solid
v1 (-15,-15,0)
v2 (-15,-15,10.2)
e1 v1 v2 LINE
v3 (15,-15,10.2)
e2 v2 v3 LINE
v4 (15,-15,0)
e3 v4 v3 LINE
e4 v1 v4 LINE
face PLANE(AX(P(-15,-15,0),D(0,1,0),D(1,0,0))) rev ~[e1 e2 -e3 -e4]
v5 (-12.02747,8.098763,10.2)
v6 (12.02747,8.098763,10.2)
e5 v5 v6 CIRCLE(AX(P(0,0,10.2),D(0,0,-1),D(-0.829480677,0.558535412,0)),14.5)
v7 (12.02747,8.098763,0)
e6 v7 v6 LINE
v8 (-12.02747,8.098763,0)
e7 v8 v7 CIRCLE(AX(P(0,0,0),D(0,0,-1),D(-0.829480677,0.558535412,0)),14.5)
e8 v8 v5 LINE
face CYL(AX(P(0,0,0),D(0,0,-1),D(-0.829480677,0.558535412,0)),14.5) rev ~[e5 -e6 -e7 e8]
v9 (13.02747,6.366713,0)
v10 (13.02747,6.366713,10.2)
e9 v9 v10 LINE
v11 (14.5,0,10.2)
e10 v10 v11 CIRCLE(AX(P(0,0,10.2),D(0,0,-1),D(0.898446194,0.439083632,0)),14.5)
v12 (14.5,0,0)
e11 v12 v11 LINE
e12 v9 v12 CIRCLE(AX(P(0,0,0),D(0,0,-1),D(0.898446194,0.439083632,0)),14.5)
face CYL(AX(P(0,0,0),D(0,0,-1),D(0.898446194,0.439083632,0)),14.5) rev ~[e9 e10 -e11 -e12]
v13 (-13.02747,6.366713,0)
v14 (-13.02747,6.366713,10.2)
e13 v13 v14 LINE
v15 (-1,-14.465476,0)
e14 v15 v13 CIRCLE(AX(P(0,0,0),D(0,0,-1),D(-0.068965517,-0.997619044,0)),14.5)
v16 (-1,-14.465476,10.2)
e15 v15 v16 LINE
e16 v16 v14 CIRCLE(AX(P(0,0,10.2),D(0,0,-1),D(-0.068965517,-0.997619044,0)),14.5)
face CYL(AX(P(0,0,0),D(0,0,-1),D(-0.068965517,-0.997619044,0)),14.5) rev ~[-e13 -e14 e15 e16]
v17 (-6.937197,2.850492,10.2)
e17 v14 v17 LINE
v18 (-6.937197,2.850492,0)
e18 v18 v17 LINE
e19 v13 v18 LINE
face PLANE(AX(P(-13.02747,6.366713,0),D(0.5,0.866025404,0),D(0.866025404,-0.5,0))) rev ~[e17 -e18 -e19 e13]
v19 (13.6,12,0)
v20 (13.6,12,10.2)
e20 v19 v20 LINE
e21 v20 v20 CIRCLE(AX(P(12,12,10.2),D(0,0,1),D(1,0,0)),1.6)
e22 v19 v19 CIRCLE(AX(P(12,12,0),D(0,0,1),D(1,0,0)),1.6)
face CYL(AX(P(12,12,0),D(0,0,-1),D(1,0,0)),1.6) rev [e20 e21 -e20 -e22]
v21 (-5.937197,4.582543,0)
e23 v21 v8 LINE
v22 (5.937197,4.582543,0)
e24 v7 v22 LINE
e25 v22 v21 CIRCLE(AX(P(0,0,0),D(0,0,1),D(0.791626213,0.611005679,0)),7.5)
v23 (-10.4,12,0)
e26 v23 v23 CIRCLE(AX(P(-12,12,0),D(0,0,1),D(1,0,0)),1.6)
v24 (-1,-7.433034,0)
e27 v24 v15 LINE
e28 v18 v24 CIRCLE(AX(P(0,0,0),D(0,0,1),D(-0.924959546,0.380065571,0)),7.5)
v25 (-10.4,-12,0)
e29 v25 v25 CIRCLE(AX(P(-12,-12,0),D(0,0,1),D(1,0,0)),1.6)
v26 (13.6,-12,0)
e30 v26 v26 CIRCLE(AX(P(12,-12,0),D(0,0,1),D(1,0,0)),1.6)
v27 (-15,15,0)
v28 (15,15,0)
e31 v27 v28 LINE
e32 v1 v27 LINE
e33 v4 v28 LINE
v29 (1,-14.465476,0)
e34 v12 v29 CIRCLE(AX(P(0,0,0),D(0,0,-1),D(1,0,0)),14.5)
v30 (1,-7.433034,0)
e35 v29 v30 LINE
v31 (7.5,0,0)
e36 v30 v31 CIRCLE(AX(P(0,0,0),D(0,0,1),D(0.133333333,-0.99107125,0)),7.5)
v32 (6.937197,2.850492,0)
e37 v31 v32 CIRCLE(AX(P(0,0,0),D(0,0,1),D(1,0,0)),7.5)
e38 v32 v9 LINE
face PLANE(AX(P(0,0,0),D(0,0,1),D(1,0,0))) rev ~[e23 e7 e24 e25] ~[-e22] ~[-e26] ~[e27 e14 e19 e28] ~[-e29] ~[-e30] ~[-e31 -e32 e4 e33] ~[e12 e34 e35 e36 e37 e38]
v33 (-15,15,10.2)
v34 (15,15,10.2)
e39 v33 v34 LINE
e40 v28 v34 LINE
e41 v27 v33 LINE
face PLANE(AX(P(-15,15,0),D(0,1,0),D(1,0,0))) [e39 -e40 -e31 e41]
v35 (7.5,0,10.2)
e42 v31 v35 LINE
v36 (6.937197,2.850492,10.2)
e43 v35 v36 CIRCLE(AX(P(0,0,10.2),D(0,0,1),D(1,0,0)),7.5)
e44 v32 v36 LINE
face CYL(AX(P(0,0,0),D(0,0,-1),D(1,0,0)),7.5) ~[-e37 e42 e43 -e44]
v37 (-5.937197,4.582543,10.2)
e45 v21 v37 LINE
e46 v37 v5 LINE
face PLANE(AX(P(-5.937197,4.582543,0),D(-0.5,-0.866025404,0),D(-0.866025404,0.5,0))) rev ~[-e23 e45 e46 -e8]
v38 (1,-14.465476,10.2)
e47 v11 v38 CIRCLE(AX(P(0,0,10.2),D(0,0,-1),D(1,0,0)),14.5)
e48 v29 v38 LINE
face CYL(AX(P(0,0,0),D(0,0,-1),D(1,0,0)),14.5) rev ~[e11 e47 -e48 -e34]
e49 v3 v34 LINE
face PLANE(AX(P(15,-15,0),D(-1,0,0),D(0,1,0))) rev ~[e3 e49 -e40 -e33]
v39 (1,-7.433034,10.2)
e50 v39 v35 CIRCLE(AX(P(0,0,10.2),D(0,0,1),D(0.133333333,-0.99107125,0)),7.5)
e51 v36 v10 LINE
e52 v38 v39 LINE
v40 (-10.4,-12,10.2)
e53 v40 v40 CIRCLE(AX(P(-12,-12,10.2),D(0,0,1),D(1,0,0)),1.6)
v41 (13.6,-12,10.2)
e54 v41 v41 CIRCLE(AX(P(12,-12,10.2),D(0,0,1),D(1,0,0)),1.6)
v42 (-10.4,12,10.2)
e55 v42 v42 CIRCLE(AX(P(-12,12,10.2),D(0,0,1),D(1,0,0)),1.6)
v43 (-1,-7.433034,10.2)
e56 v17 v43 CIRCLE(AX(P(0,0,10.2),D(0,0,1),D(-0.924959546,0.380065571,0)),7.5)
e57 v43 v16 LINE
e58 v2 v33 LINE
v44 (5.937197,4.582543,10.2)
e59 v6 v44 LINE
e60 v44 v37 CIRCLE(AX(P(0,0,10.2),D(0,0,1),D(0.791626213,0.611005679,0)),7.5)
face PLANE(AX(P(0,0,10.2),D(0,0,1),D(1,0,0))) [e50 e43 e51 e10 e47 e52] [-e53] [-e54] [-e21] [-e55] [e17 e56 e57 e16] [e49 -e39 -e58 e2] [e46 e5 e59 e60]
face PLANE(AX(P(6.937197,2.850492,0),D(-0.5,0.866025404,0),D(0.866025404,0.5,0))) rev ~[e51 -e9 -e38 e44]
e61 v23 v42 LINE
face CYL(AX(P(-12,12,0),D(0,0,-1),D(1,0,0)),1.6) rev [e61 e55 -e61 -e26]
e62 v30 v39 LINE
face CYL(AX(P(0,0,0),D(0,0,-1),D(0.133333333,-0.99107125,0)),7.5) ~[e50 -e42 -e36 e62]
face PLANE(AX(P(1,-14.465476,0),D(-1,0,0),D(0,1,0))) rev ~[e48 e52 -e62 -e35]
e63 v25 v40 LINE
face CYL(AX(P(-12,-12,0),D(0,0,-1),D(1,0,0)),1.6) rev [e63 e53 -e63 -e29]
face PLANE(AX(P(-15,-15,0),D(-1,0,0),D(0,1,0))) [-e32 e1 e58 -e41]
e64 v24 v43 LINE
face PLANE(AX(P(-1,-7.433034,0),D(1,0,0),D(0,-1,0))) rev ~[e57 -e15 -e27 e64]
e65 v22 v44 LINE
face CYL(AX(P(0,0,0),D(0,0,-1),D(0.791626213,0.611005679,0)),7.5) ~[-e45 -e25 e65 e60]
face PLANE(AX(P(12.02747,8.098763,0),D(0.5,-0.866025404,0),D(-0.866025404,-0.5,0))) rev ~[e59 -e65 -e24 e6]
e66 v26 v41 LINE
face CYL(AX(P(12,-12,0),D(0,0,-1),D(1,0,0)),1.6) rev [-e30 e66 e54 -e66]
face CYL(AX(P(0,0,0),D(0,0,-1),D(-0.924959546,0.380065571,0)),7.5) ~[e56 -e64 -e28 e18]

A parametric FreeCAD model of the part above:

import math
import FreeCAD as App
import Part
import Sketcher
Q = App.Units.Quantity


def add_polygon(sketch, points):
    """Adds a closed chain of lines whose ends are joined by coincident constraints."""
    first, n = sketch.GeometryCount, len(points)
    for a, b in zip(points, points[1:] + points[:1]):
        sketch.addGeometry(Part.LineSegment(App.Vector(*a, 0), App.Vector(*b, 0)), False)
    for i in range(n):
        sketch.addConstraint(Sketcher.Constraint("Coincident", first + i, 2, first + (i + 1) % n, 1))

doc = App.newDocument("Part")
body = doc.addObject("PartDesign::Body", "Body")

# Sketch on XY plane
sketch1 = body.newObject("Sketcher::SketchObject", "Sketch")
sketch1.AttachmentSupport = (doc.getObject("XY_Plane"), [""])
sketch1.MapMode = "FlatFace"
add_polygon(sketch1, [(-15, 15), (-15, -15), (15, -15), (15, 15)])  # lines 0-3
sketch1.addGeometry(Part.Circle(App.Vector(-12, -12, 0), App.Vector(0, 0, 1), 1.6), False)  # 4
sketch1.addGeometry(Part.ArcOfCircle(Part.Circle(App.Vector(0, 0, 0), App.Vector(0, 0, 1), 14.5), math.radians(154), math.radians(266)), False)  # 5
sketch1.addGeometry(Part.LineSegment(App.Vector(-13, 6.4, 0), App.Vector(-6.9, 2.9, 0)), False)  # 6
sketch1.addGeometry(Part.ArcOfCircle(Part.Circle(App.Vector(0, 0, 0), App.Vector(0, 0, 1), 7.5), math.radians(158), math.radians(262)), False)  # 7
sketch1.addGeometry(Part.LineSegment(App.Vector(-1, -7.4, 0), App.Vector(-1, -14.5, 0)), False)  # 8
sketch1.addGeometry(Part.Circle(App.Vector(12, -12, 0), App.Vector(0, 0, 1), 1.6), False)  # 9
sketch1.addGeometry(Part.ArcOfCircle(Part.Circle(App.Vector(0, 0, 0), App.Vector(0, 0, 1), 14.5), math.radians(-86), math.radians(0)), False)  # 10
sketch1.addGeometry(Part.LineSegment(App.Vector(1, -14.5, 0), App.Vector(1, -7.4, 0)), False)  # 11
sketch1.addGeometry(Part.ArcOfCircle(Part.Circle(App.Vector(0, 0, 0), App.Vector(0, 0, 1), 7.5), math.radians(-82), math.radians(0)), False)  # 12
sketch1.addGeometry(Part.ArcOfCircle(Part.Circle(App.Vector(0, 0, 0), App.Vector(0, 0, 1), 7.5), math.radians(0), math.radians(22)), False)  # 13
sketch1.addGeometry(Part.LineSegment(App.Vector(6.9, 2.9, 0), App.Vector(13, 6.4, 0)), False)  # 14
sketch1.addGeometry(Part.ArcOfCircle(Part.Circle(App.Vector(0, 0, 0), App.Vector(0, 0, 1), 14.5), math.radians(0), math.radians(26)), False)  # 15
sketch1.addGeometry(Part.Circle(App.Vector(-12, 12, 0), App.Vector(0, 0, 1), 1.6), False)  # 16
sketch1.addGeometry(Part.ArcOfCircle(Part.Circle(App.Vector(0, 0, 0), App.Vector(0, 0, 1), 14.5), math.radians(34), math.radians(146)), False)  # 17
sketch1.addGeometry(Part.LineSegment(App.Vector(12, 8.1, 0), App.Vector(5.9, 4.6, 0)), False)  # 18
sketch1.addGeometry(Part.ArcOfCircle(Part.Circle(App.Vector(0, 0, 0), App.Vector(0, 0, 1), 7.5), math.radians(38), math.radians(142)), False)  # 19
sketch1.addGeometry(Part.LineSegment(App.Vector(-5.9, 4.6, 0), App.Vector(-12, 8.1, 0)), False)  # 20
sketch1.addGeometry(Part.Circle(App.Vector(12, 12, 0), App.Vector(0, 0, 1), 1.6), False)  # 21
sketch1.addConstraint([
    Sketcher.Constraint("Coincident", 5, 1, 6, 1),
    Sketcher.Constraint("Coincident", 6, 2, 7, 1),
    Sketcher.Constraint("Coincident", 7, 2, 8, 1),
    Sketcher.Constraint("Coincident", 8, 2, 5, 2),
    Sketcher.Constraint("Coincident", 10, 1, 11, 1),
    Sketcher.Constraint("Coincident", 11, 2, 12, 1),
    Sketcher.Constraint("Tangent", 12, 2, 13, 1),
    Sketcher.Constraint("Coincident", 13, 2, 14, 1),
    Sketcher.Constraint("Coincident", 14, 2, 15, 2),
    Sketcher.Constraint("Tangent", 15, 1, 10, 2),
    Sketcher.Constraint("Coincident", 17, 1, 18, 1),
    Sketcher.Constraint("Coincident", 18, 2, 19, 1),
    Sketcher.Constraint("Coincident", 19, 2, 20, 1),
    Sketcher.Constraint("Coincident", 20, 2, 17, 2),
    Sketcher.Constraint("Vertical", 0),
    Sketcher.Constraint("Horizontal", 1),
    Sketcher.Constraint("Vertical", 2),
    Sketcher.Constraint("Horizontal", 3),
    Sketcher.Constraint("Vertical", 8),
    Sketcher.Constraint("Vertical", 11),
    Sketcher.Constraint("Coincident", 5, 3, -1, 1),
    Sketcher.Constraint("Coincident", 7, 3, -1, 1),
    Sketcher.Constraint("Coincident", 10, 3, -1, 1),
    Sketcher.Constraint("Coincident", 12, 3, -1, 1),
    Sketcher.Constraint("Coincident", 17, 3, -1, 1),
    Sketcher.Constraint("Coincident", 19, 3, -1, 1),
    Sketcher.Constraint("Equal", 4, 9),
    Sketcher.Constraint("Equal", 5, 10),
    Sketcher.Constraint("Equal", 7, 12),
    Sketcher.Constraint("Equal", 12, 13),
    Sketcher.Constraint("Equal", 10, 15),
    Sketcher.Constraint("Equal", 9, 16),
    Sketcher.Constraint("Equal", 15, 17),
    Sketcher.Constraint("Equal", 13, 19),
    Sketcher.Constraint("Equal", 16, 21),
    Sketcher.Constraint("Symmetric", 9, 3, 16, 3, -1, 1),
    Sketcher.Constraint("Symmetric", 4, 3, 21, 3, -1, 1),
    Sketcher.Constraint("Symmetric", 0, 2, 2, 2, -1, 1),
    Sketcher.Constraint("Symmetric", 4, 3, 9, 3, -2),
    Sketcher.Constraint("PointOnObject", 12, 2, -1),
    Sketcher.Constraint("PointOnObject", 15, 1, -1),
    Sketcher.Constraint("Parallel", 14, 18),
    Sketcher.Constraint("Parallel", 6, 20),
    Sketcher.Constraint("Horizontal", 8, 2, 10, 1),
    Sketcher.Constraint("Horizontal", 6, 2, 13, 2),
    Sketcher.Constraint("Horizontal", 5, 1, 14, 2),
    Sketcher.Constraint("Horizontal", 18, 2, 19, 2),
    Sketcher.Constraint("Equal", 3, 0),
    Sketcher.Constraint("Equal", 14, 18),
    Sketcher.Constraint("Diameter", 4, 3.2),
    Sketcher.Constraint("Radius", 5, 14.5),
    Sketcher.Constraint("Radius", 7, 7.5),
    Sketcher.Constraint("DistanceX", 1, 1, 1, 2, 30.0),
    Sketcher.Constraint("Angle", 6, Q("-30 deg")),
    Sketcher.Constraint("DistanceX", 4, 3, -1, 1, 12.0),
    Sketcher.Constraint("DistanceY", 4, 3, -1, 1, 12.0),
    Sketcher.Constraint("DistanceX", 7, 2, -1, 1, 1.0),
    Sketcher.Constraint("DistanceX", 17, 1, 14, 2, 1.0),
])
pad1 = body.newObject("PartDesign::Pad", "Pad")
pad1.Profile = sketch1
pad1.Length = 10.2

doc.recompute()
